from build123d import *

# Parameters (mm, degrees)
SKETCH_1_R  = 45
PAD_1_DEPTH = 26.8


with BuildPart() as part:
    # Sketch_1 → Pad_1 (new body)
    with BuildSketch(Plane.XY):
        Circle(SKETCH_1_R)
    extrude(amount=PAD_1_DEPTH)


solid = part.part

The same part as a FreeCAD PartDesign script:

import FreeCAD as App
import Part
import Sketcher

V = App.Vector
Q = App.Units.Quantity

doc = App.newDocument("Part")
body = doc.addObject("PartDesign::Body", "Body")

# Sketch on XY plane
sketch1 = body.newObject("Sketcher::SketchObject", "Sketch")
sketch1.AttachmentSupport = (doc.getObject("XY_Plane"), [""])
sketch1.MapMode = "FlatFace"
sketch1.addGeometry(Part.Circle(V(0, 0, 0), V(0, 0, 1), 45), False)
sketch1.addConstraint([
    Sketcher.Constraint("Coincident", 0, 3, -1, 1),
    Sketcher.Constraint("Diameter", 0, Q("90 mm")),
])
pad1 = body.newObject("PartDesign::Pad", "Pad")
pad1.Profile = sketch1
pad1.Length = 26.8

doc.recompute()
